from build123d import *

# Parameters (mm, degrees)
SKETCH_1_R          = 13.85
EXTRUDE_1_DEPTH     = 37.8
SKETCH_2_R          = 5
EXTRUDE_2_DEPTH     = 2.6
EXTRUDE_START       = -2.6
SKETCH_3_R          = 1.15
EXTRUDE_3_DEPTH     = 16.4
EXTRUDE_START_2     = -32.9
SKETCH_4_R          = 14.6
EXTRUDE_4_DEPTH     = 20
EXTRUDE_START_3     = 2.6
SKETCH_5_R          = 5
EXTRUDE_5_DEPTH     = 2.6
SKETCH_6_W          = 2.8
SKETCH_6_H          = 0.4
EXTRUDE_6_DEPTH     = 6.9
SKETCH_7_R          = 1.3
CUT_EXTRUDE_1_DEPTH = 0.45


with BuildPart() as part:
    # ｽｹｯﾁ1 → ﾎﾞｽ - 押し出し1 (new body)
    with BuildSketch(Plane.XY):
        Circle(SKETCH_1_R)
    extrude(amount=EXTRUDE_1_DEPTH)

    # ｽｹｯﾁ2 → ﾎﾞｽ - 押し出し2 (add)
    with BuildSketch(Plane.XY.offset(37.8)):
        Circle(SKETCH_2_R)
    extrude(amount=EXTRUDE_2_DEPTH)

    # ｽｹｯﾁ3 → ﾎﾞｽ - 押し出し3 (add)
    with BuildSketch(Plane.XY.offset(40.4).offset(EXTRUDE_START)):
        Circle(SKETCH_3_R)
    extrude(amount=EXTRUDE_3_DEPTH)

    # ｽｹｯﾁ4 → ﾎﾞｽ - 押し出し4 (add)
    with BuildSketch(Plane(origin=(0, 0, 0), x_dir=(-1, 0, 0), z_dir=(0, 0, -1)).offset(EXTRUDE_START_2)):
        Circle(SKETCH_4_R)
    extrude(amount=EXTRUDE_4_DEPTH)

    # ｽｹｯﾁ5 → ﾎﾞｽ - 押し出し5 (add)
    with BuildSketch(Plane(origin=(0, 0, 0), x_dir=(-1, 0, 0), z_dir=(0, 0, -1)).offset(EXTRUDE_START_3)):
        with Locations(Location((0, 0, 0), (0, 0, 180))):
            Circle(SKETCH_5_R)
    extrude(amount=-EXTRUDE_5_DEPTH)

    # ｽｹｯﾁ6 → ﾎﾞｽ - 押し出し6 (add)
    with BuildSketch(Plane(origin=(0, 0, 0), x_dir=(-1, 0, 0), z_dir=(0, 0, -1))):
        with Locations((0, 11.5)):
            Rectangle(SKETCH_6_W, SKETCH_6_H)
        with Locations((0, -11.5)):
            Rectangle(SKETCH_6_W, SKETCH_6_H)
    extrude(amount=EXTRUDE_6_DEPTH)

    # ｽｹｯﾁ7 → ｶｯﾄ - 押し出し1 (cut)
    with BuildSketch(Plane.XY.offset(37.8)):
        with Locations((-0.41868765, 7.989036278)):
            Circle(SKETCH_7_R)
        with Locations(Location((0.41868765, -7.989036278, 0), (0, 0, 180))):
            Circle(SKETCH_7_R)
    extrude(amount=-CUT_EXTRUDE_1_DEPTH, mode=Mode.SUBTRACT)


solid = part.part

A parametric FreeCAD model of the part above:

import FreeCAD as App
import Part
import Sketcher

V = App.Vector
Q = App.Units.Quantity

doc = App.newDocument("Part")
params = doc.addObject("Spreadsheet::Sheet", "Params")
for row, (alias, value) in enumerate([
    ("sketch1_diameter", "27.7 mm"),
    ("pad1_length", "37.8 mm"),
    ("sketch2_diameter", "10 mm"),
    ("pad2_length", "2.6 mm"),
    ("sketch3_diameter", "2.3 mm"),
    ("pad3_length", "16.4 mm"),
    ("sketch4_diameter", "29.2 mm"),
    ("pad4_length", "20 mm"),
    ("sketch5_diameter", "10 mm"),
    ("pad5_length", "2.6 mm"),
    ("sketch6_width", "2.8 mm"),
    ("sketch6_height", "0.4 mm"),
    ("pad6_length", "6.9 mm"),
    ("sketch7_diameter", "2.6 mm"),
    ("pocket1_length", "0.45 mm"),
], start=1):
    params.set(f"A{row}", alias)
    params.set(f"B{row}", "=" + value)
    params.setAlias(f"B{row}", alias)

body = doc.addObject("PartDesign::Body", "Body")

# Sketch on XY plane
sketch1 = body.newObject("Sketcher::SketchObject", "Sketch")
sketch1.AttachmentSupport = (doc.getObject("XY_Plane"), [""])
sketch1.MapMode = "FlatFace"
sketch1.addGeometry(Part.Circle(V(0, 0, 0), V(0, 0, 1), 14), False)
sketch1.addConstraint(Sketcher.Constraint("Coincident", 0, 3, -1, 1))
sketch1.addConstraint(Sketcher.Constraint("Diameter", 0, Q("27.7 mm")))
sketch1.setExpression("Constraints[1]", "Params.sketch1_diameter")
pad1 = body.newObject("PartDesign::Pad", "Pad")
pad1.Profile = sketch1
pad1.setExpression("Length", "Params.pad1_length")

# Sketch on XY plane
sketch2 = body.newObject("Sketcher::SketchObject", "Sketch001")
sketch2.AttachmentSupport = (doc.getObject("XY_Plane"), [""])
sketch2.MapMode = "FlatFace"
sketch2.AttachmentOffset = App.Placement(V(0, 0, 37.8), App.Rotation())
sketch2.addGeometry(Part.Circle(V(0, 0, 0), V(0, 0, 1), 5), False)
sketch2.addConstraint(Sketcher.Constraint("Coincident", 0, 3, -1, 1))
sketch2.addConstraint(Sketcher.Constraint("Diameter", 0, Q("10 mm")))
sketch2.setExpression("Constraints[1]", "Params.sketch2_diameter")
pad2 = body.newObject("PartDesign::Pad", "Pad001")
pad2.Profile = sketch2
pad2.setExpression("Length", "Params.pad2_length")

# Sketch on XY plane
sketch3 = body.newObject("Sketcher::SketchObject", "Sketch002")
sketch3.AttachmentSupport = (doc.getObject("XY_Plane"), [""])
sketch3.MapMode = "FlatFace"
sketch3.AttachmentOffset = App.Placement(V(0, 0, 37.8), App.Rotation())
sketch3.addGeometry(Part.Circle(V(0, 0, 0), V(0, 0, 1), 1.1), False)
sketch3.addConstraint(Sketcher.Constraint("Coincident", 0, 3, -1, 1))
sketch3.addConstraint(Sketcher.Constraint("Diameter", 0, Q("2.3 mm")))
sketch3.setExpression("Constraints[1]", "Params.sketch3_diameter")
pad3 = body.newObject("PartDesign::Pad", "Pad002")
pad3.Profile = sketch3
pad3.setExpression("Length", "Params.pad3_length")

# Sketch on XY plane
sketch4 = body.newObject("Sketcher::SketchObject", "Sketch003")
sketch4.AttachmentSupport = (doc.getObject("XY_Plane"), [""])
sketch4.MapMode = "FlatFace"
sketch4.AttachmentOffset = App.Placement(V(0, 0, 32.9), App.Rotation())
sketch4.addGeometry(Part.Circle(V(0, 0, 0), V(0, 0, 1), 15), False)
sketch4.addConstraint(Sketcher.Constraint("Coincident", 0, 3, -1, 1))
sketch4.addConstraint(Sketcher.Constraint("Diameter", 0, Q("29.2 mm")))
sketch4.setExpression("Constraints[1]", "Params.sketch4_diameter")
pad4 = body.newObject("PartDesign::Pad", "Pad003")
pad4.Profile = sketch4
pad4.setExpression("Length", "Params.pad4_length")
pad4.Reversed = True

# Sketch on XY plane
sketch5 = body.newObject("Sketcher::SketchObject", "Sketch004")
sketch5.AttachmentSupport = (doc.getObject("XY_Plane"), [""])
sketch5.MapMode = "FlatFace"
sketch5.AttachmentOffset = App.Placement(V(0, 0, -2.6), App.Rotation())
sketch5.addGeometry(Part.Circle(V(0, 0, 0), V(0, 0, 1), 5), False)
sketch5.addConstraint(Sketcher.Constraint("Coincident", 0, 3, -1, 1))
sketch5.addConstraint(Sketcher.Constraint("Diameter", 0, Q("10 mm")))
sketch5.setExpression("Constraints[1]", "Params.sketch5_diameter")
pad5 = body.newObject("PartDesign::Pad", "Pad004")
pad5.Profile = sketch5
pad5.setExpression("Length", "Params.pad5_length")

# Sketch on XY plane
sketch6 = body.newObject("Sketcher::SketchObject", "Sketch005")
sketch6.AttachmentSupport = (doc.getObject("XY_Plane"), [""])
sketch6.MapMode = "FlatFace"
sketch6.addGeometry(Part.LineSegment(V(1.4, 11.7, 0), V(1.4, 11.3, 0)), False)
sketch6.addGeometry(Part.LineSegment(V(1.4, 11.3, 0), V(-1.4, 11.3, 0)), False)
sketch6.addGeometry(Part.LineSegment(V(-1.4, 11.3, 0), V(-1.4, 11.7, 0)), False)
sketch6.addGeometry(Part.LineSegment(V(-1.4, 11.7, 0), V(1.4, 11.7, 0)), False)
sketch6.addGeometry(Part.LineSegment(V(1.4, -11.3, 0), V(1.4, -11.7, 0)), False)
sketch6.addGeometry(Part.LineSegment(V(1.4, -11.7, 0), V(-1.4, -11.7, 0)), False)
sketch6.addGeometry(Part.LineSegment(V(-1.4, -11.7, 0), V(-1.4, -11.3, 0)), False)
sketch6.addGeometry(Part.LineSegment(V(-1.4, -11.3, 0), V(1.4, -11.3, 0)), False)
sketch6.addConstraint(Sketcher.Constraint("Coincident", 0, 2, 1, 1))
sketch6.addConstraint(Sketcher.Constraint("Coincident", 1, 2, 2, 1))
sketch6.addConstraint(Sketcher.Constraint("Coincident", 2, 2, 3, 1))
sketch6.addConstraint(Sketcher.Constraint("Coincident", 3, 2, 0, 1))
sketch6.addConstraint(Sketcher.Constraint("Coincident", 4, 2, 5, 1))
sketch6.addConstraint(Sketcher.Constraint("Coincident", 5, 2, 6, 1))
sketch6.addConstraint(Sketcher.Constraint("Coincident", 6, 2, 7, 1))
sketch6.addConstraint(Sketcher.Constraint("Coincident", 7, 2, 4, 1))
sketch6.addConstraint(Sketcher.Constraint("Vertical", 0))
sketch6.addConstraint(Sketcher.Constraint("Horizontal", 1))
sketch6.addConstraint(Sketcher.Constraint("Vertical", 2))
sketch6.addConstraint(Sketcher.Constraint("Horizontal", 3))
sketch6.addConstraint(Sketcher.Constraint("Vertical", 4))
sketch6.addConstraint(Sketcher.Constraint("Horizontal", 5))
sketch6.addConstraint(Sketcher.Constraint("Vertical", 6))
sketch6.addConstraint(Sketcher.Constraint("Horizontal", 7))
sketch6.addConstraint(Sketcher.Constraint("Symmetric", 2, 2, 4, 2, -1, 1))
sketch6.addConstraint(Sketcher.Constraint("Symmetric", 0, 2, 6, 2, -1, 1))
sketch6.addConstraint(Sketcher.Constraint("Vertical", 3, 2, 4, 2))
sketch6.addConstraint(Sketcher.Constraint("DistanceX", 1, 2, 1, 1, Q("2.8 mm")))
sketch6.addConstraint(Sketcher.Constraint("DistanceY", 0, 2, 0, 1, Q("0.4 mm")))
sketch6.addConstraint(Sketcher.Constraint("DistanceY", 4, 2, 0, 2, Q("23 mm")))
sketch6.setExpression("Constraints[19]", "Params.sketch6_width")
sketch6.setExpression("Constraints[20]", "Params.sketch6_height")
pad6 = body.newObject("PartDesign::Pad", "Pad005")
pad6.Profile = sketch6
pad6.setExpression("Length", "Params.pad6_length")
pad6.Reversed = True

# Sketch on XY plane
sketch7 = body.newObject("Sketcher::SketchObject", "Sketch006")
sketch7.AttachmentSupport = (doc.getObject("XY_Plane"), [""])
sketch7.MapMode = "FlatFace"
sketch7.AttachmentOffset = App.Placement(V(0, 0, 37.8), App.Rotation())
sketch7.addGeometry(Part.Circle(V(-0.4, 8, 0), V(0, 0, 1), 1.3), False)
sketch7.addGeometry(Part.Circle(V(0.4, -8, 0), V(0, 0, 1), 1.3), False)
sketch7.addConstraint(Sketcher.Constraint("Equal", 0, 1))
sketch7.addConstraint(Sketcher.Constraint("Symmetric", 0, 3, 1, 3, -1, 1))
sketch7.addConstraint(Sketcher.Constraint("Diameter", 0, Q("2.6 mm")))
sketch7.addConstraint(Sketcher.Constraint("DistanceX", 0, 3, -1, 1, Q("0.418688 mm")))
sketch7.addConstraint(Sketcher.Constraint("DistanceY", -1, 1, 0, 3, Q("7.989036 mm")))
sketch7.setExpression("Constraints[2]", "Params.sketch7_diameter")
pocket1 = body.newObject("PartDesign::Pocket", "Pocket")
pocket1.Profile = sketch7
pocket1.setExpression("Length", "Params.pocket1_length")

doc.recompute()
